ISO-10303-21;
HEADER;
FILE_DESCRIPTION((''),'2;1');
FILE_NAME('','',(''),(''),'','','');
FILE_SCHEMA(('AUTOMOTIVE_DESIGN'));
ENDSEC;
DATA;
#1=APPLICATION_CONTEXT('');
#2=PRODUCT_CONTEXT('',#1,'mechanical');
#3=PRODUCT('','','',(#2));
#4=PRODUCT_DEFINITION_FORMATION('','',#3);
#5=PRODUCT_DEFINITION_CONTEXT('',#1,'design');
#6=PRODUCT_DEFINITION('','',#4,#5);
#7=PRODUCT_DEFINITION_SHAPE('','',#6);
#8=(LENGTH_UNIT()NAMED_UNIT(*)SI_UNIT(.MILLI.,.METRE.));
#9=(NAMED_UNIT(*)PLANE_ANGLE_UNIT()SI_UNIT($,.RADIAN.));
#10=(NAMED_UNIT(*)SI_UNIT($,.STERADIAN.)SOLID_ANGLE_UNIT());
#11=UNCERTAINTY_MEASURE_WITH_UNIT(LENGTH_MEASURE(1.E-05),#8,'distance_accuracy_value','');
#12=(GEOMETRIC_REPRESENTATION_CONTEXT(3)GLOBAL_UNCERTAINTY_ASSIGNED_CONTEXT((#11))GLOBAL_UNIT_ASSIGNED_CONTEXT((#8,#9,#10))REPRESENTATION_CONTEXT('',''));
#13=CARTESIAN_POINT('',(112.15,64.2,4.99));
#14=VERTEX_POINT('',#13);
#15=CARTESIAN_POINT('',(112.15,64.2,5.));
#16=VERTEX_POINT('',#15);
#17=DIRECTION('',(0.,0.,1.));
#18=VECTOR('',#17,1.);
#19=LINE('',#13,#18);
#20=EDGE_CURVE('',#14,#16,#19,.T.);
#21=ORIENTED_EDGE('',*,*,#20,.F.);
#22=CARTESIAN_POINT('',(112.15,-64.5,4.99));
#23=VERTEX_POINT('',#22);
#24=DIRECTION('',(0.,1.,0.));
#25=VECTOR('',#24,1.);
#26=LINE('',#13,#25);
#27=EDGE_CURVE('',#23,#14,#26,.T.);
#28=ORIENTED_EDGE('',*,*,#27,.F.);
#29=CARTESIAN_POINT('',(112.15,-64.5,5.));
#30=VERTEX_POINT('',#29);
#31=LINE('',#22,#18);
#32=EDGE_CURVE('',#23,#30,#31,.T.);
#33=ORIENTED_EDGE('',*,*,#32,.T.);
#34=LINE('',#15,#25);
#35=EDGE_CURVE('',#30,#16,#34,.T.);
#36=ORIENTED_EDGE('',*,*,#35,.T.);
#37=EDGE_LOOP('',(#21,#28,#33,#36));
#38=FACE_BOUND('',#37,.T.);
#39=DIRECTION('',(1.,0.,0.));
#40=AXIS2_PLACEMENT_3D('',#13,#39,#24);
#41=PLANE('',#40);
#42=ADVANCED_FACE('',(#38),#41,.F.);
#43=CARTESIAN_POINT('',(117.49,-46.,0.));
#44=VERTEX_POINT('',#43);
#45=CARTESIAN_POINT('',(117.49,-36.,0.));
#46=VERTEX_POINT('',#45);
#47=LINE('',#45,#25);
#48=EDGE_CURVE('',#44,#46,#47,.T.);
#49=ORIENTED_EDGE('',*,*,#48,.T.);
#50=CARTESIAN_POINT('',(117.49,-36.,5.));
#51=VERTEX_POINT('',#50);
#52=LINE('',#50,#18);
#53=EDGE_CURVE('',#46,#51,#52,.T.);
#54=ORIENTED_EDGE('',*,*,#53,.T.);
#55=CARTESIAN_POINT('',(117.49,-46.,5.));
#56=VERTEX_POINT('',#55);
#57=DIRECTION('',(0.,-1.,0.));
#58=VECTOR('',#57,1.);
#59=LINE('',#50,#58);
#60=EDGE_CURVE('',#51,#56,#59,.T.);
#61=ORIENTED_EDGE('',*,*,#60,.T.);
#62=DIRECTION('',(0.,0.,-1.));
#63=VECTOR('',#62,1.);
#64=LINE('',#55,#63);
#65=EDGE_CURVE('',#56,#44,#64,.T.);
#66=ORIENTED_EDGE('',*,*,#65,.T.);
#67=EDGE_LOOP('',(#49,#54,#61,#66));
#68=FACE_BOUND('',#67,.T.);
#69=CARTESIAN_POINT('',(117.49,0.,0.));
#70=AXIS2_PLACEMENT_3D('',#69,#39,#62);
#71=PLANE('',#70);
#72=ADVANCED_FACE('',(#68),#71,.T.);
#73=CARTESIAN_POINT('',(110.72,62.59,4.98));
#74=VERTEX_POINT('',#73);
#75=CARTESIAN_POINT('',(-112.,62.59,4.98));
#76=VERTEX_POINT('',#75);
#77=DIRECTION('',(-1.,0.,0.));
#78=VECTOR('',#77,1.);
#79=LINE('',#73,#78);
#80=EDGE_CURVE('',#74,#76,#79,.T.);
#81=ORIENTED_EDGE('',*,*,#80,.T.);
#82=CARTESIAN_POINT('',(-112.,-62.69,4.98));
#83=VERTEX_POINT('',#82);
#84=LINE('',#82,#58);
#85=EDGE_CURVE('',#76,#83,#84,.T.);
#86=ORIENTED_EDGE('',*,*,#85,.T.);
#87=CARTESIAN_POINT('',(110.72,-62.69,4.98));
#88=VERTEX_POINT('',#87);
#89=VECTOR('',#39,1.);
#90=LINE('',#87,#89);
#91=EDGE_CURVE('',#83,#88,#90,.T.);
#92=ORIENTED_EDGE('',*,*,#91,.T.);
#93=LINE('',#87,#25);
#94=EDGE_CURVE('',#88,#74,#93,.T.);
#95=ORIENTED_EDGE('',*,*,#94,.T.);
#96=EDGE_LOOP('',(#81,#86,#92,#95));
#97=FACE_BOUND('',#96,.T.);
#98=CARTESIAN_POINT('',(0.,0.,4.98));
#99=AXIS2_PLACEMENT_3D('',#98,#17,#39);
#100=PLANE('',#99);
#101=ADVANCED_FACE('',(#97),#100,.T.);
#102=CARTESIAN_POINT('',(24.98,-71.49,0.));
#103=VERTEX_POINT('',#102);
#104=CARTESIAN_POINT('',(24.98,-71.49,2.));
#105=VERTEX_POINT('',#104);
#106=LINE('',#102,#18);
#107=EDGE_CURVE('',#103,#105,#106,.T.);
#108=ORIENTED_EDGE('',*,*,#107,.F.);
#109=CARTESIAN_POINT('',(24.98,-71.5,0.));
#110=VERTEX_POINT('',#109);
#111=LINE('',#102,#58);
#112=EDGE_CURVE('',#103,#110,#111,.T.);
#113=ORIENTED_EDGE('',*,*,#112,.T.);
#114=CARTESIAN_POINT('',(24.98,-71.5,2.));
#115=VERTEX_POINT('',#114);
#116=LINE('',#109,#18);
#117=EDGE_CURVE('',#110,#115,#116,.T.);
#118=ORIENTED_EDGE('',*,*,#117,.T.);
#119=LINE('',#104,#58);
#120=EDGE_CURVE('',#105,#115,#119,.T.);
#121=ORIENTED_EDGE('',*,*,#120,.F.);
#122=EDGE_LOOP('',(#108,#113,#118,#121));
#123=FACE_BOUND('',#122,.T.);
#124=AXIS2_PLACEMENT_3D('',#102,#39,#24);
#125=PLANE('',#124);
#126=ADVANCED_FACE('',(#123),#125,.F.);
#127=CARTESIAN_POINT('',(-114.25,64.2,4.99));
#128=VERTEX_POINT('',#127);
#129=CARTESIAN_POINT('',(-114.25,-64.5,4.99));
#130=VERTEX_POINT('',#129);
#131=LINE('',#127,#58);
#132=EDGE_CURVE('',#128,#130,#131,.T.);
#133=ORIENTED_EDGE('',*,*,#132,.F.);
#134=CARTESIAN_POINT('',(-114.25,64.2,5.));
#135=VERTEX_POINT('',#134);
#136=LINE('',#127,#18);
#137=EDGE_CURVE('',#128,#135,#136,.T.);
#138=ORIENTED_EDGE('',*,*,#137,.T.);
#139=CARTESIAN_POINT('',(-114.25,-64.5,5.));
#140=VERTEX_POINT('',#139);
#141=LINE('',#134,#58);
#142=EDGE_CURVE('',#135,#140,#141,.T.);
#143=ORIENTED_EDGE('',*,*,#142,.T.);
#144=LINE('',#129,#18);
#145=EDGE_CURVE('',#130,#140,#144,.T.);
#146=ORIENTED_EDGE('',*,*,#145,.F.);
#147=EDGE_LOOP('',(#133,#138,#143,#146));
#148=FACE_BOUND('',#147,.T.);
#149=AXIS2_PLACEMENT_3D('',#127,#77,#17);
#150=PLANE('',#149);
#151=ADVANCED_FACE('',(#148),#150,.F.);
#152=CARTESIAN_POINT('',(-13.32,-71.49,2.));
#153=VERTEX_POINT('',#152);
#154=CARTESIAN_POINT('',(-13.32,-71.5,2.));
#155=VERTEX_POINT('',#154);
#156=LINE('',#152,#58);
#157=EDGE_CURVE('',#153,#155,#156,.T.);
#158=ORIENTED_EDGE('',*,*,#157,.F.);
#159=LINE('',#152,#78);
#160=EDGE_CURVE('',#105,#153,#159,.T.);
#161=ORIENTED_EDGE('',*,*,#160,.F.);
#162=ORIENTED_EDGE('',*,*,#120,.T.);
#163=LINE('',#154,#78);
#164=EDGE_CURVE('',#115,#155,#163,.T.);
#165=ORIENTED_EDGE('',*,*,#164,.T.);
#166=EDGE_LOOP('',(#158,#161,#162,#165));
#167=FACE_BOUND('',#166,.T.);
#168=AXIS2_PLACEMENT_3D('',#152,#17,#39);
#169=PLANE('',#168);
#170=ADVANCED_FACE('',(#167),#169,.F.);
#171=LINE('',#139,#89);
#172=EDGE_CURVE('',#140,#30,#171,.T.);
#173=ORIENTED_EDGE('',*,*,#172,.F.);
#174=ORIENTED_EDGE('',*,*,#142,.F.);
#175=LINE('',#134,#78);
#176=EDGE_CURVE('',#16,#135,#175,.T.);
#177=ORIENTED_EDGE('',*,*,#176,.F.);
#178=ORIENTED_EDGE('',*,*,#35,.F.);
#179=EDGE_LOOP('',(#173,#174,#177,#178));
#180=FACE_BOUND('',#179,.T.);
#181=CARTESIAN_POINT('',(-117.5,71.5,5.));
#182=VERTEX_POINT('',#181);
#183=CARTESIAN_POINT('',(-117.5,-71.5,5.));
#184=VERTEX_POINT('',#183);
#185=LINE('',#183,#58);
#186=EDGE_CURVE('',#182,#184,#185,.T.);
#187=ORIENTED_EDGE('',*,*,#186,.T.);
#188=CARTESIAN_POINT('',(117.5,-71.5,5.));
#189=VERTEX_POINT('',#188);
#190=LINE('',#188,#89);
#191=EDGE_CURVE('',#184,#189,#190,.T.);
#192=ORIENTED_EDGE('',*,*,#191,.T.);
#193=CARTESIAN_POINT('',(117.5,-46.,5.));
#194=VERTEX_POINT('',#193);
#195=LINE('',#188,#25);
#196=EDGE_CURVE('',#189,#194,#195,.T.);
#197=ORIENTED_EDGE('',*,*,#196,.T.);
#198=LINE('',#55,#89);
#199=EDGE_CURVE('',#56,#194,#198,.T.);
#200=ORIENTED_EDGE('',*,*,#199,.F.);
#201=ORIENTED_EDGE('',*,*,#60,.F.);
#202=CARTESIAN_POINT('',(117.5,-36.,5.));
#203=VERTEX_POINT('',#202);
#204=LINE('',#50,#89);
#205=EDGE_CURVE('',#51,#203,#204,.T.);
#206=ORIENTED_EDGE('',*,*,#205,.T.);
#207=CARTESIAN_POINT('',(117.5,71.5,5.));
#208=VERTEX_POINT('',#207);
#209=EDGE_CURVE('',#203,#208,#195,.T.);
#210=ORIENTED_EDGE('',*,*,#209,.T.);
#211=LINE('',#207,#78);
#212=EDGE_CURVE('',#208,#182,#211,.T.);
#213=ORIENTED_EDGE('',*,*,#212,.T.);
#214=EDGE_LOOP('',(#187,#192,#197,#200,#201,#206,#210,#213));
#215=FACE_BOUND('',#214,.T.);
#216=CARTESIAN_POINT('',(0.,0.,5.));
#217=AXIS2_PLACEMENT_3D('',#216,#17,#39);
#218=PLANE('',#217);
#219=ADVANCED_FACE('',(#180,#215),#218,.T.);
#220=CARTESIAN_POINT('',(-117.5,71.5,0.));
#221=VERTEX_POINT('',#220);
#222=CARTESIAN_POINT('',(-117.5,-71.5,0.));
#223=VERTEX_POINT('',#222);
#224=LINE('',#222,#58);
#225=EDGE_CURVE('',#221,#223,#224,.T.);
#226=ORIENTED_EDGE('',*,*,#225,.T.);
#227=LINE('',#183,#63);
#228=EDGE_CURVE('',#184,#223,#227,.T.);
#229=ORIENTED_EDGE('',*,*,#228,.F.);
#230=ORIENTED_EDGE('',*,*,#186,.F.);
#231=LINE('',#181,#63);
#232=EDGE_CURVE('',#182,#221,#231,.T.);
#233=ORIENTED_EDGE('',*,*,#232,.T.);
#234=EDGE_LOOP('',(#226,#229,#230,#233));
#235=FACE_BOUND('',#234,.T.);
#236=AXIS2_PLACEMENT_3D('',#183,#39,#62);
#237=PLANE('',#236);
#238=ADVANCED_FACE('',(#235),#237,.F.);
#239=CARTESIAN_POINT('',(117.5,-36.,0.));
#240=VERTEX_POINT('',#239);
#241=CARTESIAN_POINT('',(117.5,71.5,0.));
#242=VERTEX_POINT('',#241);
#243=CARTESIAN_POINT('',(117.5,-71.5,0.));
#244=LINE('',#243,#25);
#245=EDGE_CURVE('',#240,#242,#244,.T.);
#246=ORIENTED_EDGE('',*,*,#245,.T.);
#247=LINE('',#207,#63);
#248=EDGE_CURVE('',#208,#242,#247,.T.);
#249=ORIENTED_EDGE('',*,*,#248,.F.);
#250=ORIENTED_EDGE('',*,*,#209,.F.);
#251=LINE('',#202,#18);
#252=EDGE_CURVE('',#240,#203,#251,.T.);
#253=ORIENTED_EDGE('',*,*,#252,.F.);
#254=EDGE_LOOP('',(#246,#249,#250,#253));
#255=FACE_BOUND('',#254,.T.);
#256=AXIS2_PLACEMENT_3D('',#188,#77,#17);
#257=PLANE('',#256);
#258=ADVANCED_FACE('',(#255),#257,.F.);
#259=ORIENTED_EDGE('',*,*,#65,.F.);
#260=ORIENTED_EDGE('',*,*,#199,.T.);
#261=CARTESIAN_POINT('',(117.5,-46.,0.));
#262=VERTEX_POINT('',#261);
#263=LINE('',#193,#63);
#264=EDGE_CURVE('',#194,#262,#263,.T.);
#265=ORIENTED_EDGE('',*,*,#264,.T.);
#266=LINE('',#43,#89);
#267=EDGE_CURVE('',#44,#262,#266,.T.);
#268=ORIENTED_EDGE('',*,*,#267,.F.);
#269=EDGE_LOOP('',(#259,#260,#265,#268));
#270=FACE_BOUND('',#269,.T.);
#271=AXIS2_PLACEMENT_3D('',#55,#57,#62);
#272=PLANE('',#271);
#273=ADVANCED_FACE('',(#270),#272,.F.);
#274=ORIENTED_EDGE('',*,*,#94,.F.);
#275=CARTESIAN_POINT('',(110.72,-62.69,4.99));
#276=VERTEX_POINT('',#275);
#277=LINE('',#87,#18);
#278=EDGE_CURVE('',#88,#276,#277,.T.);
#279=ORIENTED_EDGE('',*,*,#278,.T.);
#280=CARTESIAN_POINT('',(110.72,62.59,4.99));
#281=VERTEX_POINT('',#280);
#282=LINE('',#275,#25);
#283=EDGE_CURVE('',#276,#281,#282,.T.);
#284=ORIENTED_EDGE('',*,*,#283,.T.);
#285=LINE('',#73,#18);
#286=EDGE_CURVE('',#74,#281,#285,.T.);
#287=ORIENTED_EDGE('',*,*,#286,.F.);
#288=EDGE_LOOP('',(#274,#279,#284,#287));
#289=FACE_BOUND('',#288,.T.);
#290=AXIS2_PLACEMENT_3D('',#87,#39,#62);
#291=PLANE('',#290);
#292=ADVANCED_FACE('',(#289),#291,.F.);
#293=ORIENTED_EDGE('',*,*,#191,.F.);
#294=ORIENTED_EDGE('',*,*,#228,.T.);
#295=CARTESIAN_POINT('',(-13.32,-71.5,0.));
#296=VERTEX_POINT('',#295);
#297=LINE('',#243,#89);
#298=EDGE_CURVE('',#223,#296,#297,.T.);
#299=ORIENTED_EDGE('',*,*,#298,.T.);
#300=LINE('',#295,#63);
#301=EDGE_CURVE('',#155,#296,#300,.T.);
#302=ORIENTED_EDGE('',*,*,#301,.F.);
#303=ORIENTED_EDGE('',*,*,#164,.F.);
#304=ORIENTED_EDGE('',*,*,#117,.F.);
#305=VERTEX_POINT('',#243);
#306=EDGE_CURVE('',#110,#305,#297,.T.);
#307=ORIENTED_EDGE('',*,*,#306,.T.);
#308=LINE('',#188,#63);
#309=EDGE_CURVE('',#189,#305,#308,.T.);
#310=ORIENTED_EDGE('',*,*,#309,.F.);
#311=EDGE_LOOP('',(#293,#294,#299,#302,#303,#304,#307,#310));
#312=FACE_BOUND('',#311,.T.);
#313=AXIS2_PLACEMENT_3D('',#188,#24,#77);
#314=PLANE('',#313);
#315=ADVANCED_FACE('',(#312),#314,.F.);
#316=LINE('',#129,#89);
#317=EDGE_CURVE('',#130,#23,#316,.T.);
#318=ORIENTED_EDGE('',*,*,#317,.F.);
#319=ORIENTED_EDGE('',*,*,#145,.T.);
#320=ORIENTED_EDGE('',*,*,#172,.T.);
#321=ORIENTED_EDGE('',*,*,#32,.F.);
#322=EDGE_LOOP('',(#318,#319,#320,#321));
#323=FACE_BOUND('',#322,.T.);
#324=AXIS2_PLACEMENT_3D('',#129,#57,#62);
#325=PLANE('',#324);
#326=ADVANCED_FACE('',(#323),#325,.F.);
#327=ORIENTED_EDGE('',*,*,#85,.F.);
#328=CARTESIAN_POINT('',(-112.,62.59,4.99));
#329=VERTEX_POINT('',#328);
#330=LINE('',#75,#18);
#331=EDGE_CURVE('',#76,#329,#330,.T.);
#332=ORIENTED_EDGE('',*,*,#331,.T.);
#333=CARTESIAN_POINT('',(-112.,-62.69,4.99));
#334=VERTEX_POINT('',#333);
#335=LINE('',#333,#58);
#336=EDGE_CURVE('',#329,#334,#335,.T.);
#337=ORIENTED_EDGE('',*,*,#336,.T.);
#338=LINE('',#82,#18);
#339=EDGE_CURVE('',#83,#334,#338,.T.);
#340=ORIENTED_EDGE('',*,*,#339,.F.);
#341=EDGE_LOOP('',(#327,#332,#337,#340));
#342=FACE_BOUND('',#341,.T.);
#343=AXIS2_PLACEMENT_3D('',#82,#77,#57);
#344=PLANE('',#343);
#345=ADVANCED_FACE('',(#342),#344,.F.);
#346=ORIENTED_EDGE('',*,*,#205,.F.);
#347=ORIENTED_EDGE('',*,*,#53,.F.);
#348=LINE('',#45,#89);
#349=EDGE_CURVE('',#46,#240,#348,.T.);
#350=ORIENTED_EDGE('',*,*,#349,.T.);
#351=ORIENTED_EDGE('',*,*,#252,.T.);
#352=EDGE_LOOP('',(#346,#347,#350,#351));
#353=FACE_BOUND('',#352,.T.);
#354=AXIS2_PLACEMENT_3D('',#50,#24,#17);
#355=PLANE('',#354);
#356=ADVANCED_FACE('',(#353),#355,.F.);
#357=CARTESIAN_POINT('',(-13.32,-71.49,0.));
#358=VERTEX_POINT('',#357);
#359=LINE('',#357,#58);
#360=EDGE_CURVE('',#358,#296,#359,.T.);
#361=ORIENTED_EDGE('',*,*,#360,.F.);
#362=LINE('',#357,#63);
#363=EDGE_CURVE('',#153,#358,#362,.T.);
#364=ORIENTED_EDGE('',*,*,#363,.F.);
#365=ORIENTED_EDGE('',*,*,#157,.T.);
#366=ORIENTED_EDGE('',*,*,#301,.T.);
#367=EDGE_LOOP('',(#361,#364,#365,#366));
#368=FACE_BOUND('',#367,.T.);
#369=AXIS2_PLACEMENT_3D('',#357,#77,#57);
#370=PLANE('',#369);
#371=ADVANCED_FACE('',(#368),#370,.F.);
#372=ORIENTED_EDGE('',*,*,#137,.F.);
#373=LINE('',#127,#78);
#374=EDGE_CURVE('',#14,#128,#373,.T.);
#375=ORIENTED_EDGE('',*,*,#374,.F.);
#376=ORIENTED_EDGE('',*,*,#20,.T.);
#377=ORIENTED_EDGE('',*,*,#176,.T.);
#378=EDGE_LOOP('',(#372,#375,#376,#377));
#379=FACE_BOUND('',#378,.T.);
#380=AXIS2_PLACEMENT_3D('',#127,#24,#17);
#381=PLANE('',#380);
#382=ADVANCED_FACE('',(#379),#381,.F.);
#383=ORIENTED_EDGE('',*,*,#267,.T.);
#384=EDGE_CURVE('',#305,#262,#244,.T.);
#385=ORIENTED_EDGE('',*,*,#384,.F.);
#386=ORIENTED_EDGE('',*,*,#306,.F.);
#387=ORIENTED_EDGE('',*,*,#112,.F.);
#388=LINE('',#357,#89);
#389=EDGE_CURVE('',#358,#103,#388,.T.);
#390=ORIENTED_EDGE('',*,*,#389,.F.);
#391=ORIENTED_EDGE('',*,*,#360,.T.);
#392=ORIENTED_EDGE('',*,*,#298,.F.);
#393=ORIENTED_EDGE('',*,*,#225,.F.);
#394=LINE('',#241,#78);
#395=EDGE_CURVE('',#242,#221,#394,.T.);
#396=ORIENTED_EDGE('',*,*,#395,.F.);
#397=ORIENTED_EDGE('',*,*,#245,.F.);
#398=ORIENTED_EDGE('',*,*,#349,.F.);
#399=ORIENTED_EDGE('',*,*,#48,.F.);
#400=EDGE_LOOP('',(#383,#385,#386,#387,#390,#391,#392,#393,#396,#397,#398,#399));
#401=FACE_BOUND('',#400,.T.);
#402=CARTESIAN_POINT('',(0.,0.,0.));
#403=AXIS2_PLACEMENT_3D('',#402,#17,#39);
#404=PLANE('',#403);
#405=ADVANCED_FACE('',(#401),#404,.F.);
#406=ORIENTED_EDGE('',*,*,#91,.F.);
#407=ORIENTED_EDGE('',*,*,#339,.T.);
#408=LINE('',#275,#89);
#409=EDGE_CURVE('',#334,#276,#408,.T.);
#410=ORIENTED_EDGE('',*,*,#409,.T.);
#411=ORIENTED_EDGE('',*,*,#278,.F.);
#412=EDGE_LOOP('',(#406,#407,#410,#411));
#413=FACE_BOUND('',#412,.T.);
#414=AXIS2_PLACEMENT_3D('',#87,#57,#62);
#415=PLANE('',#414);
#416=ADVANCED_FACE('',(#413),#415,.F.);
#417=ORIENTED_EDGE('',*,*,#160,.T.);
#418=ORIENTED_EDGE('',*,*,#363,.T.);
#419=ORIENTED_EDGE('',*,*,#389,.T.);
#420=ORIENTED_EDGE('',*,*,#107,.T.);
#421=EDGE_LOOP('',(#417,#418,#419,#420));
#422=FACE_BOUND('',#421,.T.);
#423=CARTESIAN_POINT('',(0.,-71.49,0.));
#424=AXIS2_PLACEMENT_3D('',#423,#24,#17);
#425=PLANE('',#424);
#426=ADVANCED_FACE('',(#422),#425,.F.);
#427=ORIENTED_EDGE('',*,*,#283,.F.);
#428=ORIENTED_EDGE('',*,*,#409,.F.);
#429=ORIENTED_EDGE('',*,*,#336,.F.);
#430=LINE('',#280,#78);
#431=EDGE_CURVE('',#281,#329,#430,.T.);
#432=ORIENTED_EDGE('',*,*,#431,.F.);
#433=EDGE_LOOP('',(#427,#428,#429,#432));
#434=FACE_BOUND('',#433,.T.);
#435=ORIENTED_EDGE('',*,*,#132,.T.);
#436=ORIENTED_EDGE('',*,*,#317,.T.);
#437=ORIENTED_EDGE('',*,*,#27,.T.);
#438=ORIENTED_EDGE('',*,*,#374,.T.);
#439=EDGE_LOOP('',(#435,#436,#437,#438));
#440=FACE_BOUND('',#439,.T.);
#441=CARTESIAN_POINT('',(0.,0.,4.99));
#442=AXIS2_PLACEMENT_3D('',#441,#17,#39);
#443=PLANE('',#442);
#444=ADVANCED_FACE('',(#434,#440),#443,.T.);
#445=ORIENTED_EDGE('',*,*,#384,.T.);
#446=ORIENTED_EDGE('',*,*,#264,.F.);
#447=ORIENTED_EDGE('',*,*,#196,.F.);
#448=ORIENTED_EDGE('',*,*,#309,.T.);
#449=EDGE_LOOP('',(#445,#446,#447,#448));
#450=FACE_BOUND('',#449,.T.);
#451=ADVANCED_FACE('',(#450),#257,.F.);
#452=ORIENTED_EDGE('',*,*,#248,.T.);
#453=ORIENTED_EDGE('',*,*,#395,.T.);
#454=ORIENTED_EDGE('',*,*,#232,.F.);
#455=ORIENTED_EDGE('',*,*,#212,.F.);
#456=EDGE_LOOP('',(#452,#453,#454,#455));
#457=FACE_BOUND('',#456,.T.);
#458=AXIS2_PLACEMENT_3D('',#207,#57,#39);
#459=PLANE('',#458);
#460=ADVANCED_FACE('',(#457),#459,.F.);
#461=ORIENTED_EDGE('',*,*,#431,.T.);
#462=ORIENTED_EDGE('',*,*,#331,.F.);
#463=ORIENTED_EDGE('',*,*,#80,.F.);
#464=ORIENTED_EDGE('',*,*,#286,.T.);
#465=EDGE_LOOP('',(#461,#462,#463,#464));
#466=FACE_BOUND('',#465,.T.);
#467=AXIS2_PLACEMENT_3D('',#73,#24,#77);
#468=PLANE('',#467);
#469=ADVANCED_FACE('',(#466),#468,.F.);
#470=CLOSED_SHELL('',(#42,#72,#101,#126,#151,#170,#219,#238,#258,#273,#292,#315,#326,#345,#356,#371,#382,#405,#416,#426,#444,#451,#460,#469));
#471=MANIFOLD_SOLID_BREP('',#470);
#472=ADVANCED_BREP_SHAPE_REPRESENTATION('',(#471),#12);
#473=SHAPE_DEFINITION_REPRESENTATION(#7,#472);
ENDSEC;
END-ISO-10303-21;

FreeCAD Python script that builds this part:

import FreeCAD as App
import Part
import Sketcher
Q = App.Units.Quantity


def add_polygon(sketch, points):
    """Adds a closed chain of lines whose ends are joined by coincident constraints."""
    first, n = sketch.GeometryCount, len(points)
    for a, b in zip(points, points[1:] + points[:1]):
        sketch.addGeometry(Part.LineSegment(App.Vector(*a, 0), App.Vector(*b, 0)), False)
    for i in range(n):
        sketch.addConstraint(Sketcher.Constraint("Coincident", first + i, 2, first + (i + 1) % n, 1))

doc = App.newDocument("Part")
body = doc.addObject("PartDesign::Body", "Body")

# Sketch on XY plane
sketch1 = body.newObject("Sketcher::SketchObject", "Sketch")
sketch1.AttachmentSupport = (doc.getObject("XY_Plane"), [""])
sketch1.MapMode = "FlatFace"
add_polygon(sketch1, [(-117.5, 71.5), (-117.5, -71.5), (117.5, -71.5), (117.5, 71.5)])  # lines 0-3
sketch1.addConstraint([
    Sketcher.Constraint("Vertical", 0),
    Sketcher.Constraint("Horizontal", 1),
    Sketcher.Constraint("Vertical", 2),
    Sketcher.Constraint("Horizontal", 3),
    Sketcher.Constraint("Symmetric", 0, 2, 2, 2, -1, 1),
    Sketcher.Constraint("DistanceX", 1, 1, 1, 2, Q("235 mm")),
    Sketcher.Constraint("DistanceY", 0, 2, 0, 1, Q("143 mm")),
])
pad1 = body.newObject("PartDesign::Pad", "Pad")
pad1.Profile = sketch1
pad1.Length = 5

# Sketch on XY plane
sketch2 = body.newObject("Sketcher::SketchObject", "Sketch001")
sketch2.AttachmentSupport = (doc.getObject("XY_Plane"), [""])
sketch2.MapMode = "FlatFace"
sketch2.AttachmentOffset = App.Placement(App.Vector(0, 0, 5), App.Rotation())
add_polygon(sketch2, [(-114.25, 64.2), (-114.25, -64.5), (112.15, -64.5), (112.15, 64.2)])  # lines 0-3
sketch2.addConstraint([
    Sketcher.Constraint("Vertical", 0),
    Sketcher.Constraint("Horizontal", 1),
    Sketcher.Constraint("Vertical", 2),
    Sketcher.Constraint("Horizontal", 3),
    Sketcher.Constraint("DistanceX", 1, 1, 1, 2, Q("226.4 mm")),
    Sketcher.Constraint("DistanceY", 0, 2, 0, 1, Q("128.7 mm")),
    Sketcher.Constraint("DistanceY", 0, 2, -1, 1, Q("64.5 mm")),
    Sketcher.Constraint("DistanceX", 0, 2, -1, 1, Q("114.25 mm")),
])
pocket1 = body.newObject("PartDesign::Pocket", "Pocket")
pocket1.Profile = sketch2
pocket1.Length = 0.01

# Sketch on XY plane
sketch3 = body.newObject("Sketcher::SketchObject", "Sketch002")
sketch3.AttachmentSupport = (doc.getObject("XY_Plane"), [""])
sketch3.MapMode = "FlatFace"
sketch3.AttachmentOffset = App.Placement(App.Vector(0, 0, 4.99), App.Rotation())
add_polygon(sketch3, [(-112, 62.59), (-112, -62.69), (110.72, -62.69), (110.72, 62.59)])  # lines 0-3
sketch3.addConstraint([
    Sketcher.Constraint("Vertical", 0),
    Sketcher.Constraint("Horizontal", 1),
    Sketcher.Constraint("Vertical", 2),
    Sketcher.Constraint("Horizontal", 3),
    Sketcher.Constraint("DistanceX", 0, 2, -1, 1, Q("112 mm")),
    Sketcher.Constraint("DistanceX", 1, 1, 1, 2, Q("222.72 mm")),
    Sketcher.Constraint("DistanceY", 0, 2, 0, 1, Q("125.28 mm")),
    Sketcher.Constraint("DistanceY", 0, 2, -1, 1, Q("62.69 mm")),
])
pocket2 = body.newObject("PartDesign::Pocket", "Pocket001")
pocket2.Profile = sketch3
pocket2.Length = 0.01

# Sketch on YZ plane
sketch4 = body.newObject("Sketcher::SketchObject", "Sketch003")
sketch4.AttachmentSupport = (doc.getObject("YZ_Plane"), [""])
sketch4.MapMode = "FlatFace"
sketch4.AttachmentOffset = App.Placement(App.Vector(0, 0, 117.5), App.Rotation())
add_polygon(sketch4, [(-36, 5), (-46, 5), (-46, 0), (-36, 0)])  # lines 0-3
sketch4.addConstraint([
    Sketcher.Constraint("Horizontal", 0),
    Sketcher.Constraint("Vertical", 1),
    Sketcher.Constraint("Horizontal", 2),
    Sketcher.Constraint("Vertical", 3),
    Sketcher.Constraint("PointOnObject", 1, 2, -1),
    Sketcher.Constraint("DistanceX", 0, 2, 0, 1, Q("10 mm")),
    Sketcher.Constraint("DistanceY", 1, 2, 1, 1, Q("5 mm")),
    Sketcher.Constraint("DistanceX", 0, 2, -1, 1, Q("46 mm")),
])
pocket3 = body.newObject("PartDesign::Pocket", "Pocket002")
pocket3.Profile = sketch4
pocket3.Length = 0.01

# Sketch on XZ plane
sketch5 = body.newObject("Sketcher::SketchObject", "Sketch004")
sketch5.AttachmentSupport = (doc.getObject("XZ_Plane"), [""])
sketch5.MapMode = "FlatFace"
sketch5.AttachmentOffset = App.Placement(App.Vector(0, 0, 71.5), App.Rotation())
add_polygon(sketch5, [(24.98, 0), (24.98, 2), (-13.32, 2), (-13.32, 0)])  # lines 0-3
sketch5.addConstraint([
    Sketcher.Constraint("Vertical", 0),
    Sketcher.Constraint("Horizontal", 1),
    Sketcher.Constraint("Vertical", 2),
    Sketcher.Constraint("Horizontal", 3),
    Sketcher.Constraint("PointOnObject", 2, 2, -1),
    Sketcher.Constraint("DistanceY", 0, 1, 0, 2, Q("2 mm")),
    Sketcher.Constraint("DistanceX", 1, 2, 1, 1, Q("38.3 mm")),
    Sketcher.Constraint("DistanceX", -1, 1, 0, 2, Q("24.98 mm")),
])
pocket4 = body.newObject("PartDesign::Pocket", "Pocket003")
pocket4.Profile = sketch5
pocket4.Length = 0.01

doc.recompute()
